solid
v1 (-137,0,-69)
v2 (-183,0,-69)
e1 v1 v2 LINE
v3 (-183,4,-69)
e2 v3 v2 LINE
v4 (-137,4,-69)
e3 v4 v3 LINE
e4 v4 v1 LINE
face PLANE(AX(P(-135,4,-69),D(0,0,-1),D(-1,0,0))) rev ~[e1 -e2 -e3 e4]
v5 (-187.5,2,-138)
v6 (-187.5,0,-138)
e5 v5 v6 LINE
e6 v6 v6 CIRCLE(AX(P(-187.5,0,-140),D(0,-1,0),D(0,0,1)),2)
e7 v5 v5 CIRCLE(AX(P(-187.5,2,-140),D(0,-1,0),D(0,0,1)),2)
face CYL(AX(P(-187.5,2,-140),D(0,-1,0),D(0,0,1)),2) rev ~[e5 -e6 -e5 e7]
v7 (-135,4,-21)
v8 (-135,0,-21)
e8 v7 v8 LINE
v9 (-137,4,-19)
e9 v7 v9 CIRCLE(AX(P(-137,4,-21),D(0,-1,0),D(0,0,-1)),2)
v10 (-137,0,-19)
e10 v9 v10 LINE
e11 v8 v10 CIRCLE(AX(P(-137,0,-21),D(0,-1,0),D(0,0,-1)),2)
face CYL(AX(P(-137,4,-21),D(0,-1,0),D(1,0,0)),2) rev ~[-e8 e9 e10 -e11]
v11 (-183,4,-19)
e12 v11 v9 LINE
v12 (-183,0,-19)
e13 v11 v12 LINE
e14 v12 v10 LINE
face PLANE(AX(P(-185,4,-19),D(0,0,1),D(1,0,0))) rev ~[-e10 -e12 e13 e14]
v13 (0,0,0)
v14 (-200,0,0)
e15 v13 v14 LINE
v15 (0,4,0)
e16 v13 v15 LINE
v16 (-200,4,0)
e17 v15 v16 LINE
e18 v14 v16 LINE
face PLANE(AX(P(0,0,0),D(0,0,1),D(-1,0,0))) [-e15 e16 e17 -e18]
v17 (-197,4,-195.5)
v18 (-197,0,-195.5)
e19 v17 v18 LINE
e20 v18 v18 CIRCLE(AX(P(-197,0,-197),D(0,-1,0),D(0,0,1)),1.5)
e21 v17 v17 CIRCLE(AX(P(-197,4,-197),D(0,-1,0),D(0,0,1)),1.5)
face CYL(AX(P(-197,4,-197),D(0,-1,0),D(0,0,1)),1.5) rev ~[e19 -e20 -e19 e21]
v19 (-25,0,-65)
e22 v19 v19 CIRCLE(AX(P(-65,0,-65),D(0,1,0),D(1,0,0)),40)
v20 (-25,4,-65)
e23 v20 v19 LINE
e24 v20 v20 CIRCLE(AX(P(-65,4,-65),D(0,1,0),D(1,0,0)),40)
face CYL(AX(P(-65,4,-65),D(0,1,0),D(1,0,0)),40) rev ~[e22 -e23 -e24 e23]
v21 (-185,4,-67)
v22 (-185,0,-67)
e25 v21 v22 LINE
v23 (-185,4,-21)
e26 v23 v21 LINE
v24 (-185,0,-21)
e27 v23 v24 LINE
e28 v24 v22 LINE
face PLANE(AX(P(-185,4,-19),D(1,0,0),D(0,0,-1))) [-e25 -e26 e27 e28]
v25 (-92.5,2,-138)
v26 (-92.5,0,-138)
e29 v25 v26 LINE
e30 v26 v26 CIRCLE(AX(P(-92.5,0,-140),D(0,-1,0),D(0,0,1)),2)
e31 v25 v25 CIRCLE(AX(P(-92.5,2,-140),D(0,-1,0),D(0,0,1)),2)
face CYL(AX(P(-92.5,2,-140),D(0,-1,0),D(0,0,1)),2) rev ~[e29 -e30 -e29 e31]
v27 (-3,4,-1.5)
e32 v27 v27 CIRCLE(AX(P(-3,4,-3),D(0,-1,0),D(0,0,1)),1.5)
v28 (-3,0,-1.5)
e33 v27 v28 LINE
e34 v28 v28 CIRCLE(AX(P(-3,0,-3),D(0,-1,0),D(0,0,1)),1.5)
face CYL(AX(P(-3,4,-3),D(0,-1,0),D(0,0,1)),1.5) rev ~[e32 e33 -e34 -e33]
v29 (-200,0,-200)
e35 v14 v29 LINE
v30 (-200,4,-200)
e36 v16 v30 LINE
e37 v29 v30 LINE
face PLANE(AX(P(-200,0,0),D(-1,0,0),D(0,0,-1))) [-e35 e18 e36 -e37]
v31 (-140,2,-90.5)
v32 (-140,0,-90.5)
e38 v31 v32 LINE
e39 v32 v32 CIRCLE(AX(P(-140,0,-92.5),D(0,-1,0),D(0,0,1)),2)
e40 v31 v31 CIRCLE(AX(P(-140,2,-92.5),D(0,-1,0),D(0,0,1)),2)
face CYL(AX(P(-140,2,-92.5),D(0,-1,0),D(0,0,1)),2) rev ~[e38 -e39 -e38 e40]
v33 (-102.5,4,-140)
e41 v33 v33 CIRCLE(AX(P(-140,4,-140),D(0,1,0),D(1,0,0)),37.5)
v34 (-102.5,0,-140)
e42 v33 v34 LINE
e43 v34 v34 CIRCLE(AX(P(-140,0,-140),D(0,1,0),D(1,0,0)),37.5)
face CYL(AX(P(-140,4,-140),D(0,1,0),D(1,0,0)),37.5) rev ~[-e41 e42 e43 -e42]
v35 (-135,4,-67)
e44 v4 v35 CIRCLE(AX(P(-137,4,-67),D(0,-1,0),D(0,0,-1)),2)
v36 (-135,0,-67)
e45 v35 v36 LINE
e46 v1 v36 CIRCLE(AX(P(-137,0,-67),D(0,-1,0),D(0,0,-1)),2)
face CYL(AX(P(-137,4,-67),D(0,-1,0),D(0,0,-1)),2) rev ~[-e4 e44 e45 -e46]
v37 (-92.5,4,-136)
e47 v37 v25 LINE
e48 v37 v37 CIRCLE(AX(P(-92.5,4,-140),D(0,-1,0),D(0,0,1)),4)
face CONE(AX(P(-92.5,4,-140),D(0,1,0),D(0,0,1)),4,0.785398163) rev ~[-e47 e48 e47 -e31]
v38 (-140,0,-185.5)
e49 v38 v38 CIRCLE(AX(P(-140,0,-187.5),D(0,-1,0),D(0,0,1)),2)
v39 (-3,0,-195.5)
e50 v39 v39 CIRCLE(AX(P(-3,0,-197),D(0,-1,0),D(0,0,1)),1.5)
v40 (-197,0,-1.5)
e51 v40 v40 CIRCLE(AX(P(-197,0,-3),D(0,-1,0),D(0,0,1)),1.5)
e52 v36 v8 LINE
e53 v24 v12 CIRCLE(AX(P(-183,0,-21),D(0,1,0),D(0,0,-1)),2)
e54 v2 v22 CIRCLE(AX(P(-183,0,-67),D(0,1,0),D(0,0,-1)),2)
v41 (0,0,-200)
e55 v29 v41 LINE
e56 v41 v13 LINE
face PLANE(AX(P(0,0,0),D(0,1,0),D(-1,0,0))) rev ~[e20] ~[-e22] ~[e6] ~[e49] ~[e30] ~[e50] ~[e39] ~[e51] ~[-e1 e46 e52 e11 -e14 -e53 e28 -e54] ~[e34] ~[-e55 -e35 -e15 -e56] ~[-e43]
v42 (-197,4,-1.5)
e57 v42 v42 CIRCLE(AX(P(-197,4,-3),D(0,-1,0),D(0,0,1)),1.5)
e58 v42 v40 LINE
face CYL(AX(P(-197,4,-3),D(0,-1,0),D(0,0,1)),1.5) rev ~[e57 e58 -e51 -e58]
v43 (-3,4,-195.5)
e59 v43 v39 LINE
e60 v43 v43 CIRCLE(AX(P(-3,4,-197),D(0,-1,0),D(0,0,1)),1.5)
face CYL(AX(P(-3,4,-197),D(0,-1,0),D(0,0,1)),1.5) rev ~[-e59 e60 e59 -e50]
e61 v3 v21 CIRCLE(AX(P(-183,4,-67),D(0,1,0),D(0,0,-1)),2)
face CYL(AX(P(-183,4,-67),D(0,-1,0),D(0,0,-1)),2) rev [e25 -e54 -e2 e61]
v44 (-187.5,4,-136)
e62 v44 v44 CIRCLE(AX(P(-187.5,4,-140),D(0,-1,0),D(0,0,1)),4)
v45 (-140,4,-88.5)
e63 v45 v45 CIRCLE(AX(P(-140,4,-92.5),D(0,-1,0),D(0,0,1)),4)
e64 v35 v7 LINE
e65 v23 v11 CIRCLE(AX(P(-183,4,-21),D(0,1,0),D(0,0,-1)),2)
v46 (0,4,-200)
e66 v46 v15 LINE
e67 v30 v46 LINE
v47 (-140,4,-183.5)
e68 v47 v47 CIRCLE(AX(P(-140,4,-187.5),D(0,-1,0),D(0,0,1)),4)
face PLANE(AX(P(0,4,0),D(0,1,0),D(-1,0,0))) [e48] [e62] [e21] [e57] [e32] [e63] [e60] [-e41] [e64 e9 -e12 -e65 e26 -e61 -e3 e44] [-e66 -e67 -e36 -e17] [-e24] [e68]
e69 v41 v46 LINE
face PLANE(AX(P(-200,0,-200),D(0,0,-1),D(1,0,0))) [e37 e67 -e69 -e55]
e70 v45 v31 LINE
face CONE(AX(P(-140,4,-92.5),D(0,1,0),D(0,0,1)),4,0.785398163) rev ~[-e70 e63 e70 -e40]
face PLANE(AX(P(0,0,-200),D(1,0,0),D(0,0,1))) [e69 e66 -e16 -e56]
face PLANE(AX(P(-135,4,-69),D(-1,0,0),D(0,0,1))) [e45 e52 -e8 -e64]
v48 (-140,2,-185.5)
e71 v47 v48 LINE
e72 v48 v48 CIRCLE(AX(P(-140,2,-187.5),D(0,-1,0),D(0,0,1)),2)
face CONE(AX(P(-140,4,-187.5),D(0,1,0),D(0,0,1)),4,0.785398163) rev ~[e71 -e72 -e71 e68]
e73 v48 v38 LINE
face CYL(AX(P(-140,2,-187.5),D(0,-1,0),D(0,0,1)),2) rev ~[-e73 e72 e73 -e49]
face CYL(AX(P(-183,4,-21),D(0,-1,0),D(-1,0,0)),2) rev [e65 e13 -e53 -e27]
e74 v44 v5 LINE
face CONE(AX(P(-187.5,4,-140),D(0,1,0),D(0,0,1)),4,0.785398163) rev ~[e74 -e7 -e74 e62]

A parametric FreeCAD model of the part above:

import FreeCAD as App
import Part
import Sketcher
from FreeCAD import Vector


def edges_at(feature, points):
    """Names of the edges that pass closest to the given points."""
    edges = feature.Shape.Edges
    near = lambda p: min(range(len(edges)), key=lambda i: edges[i].distToShape(Part.Vertex(*p))[0])
    return sorted({f"Edge{near(p) + 1}" for p in points})


def add_polygon(sketch, points):
    """Adds a closed chain of lines whose ends are joined by coincident constraints."""
    first, n = sketch.GeometryCount, len(points)
    for a, b in zip(points, points[1:] + points[:1]):
        sketch.addGeometry(Part.LineSegment(App.Vector(*a, 0), App.Vector(*b, 0)), False)
    for i in range(n):
        sketch.addConstraint(Sketcher.Constraint("Coincident", first + i, 2, first + (i + 1) % n, 1))

doc = App.newDocument("Part")
body = doc.addObject("PartDesign::Body", "Body")

# Sketch on XZ plane
sketch1 = body.newObject("Sketcher::SketchObject", "Sketch")
sketch1.AttachmentSupport = (doc.getObject("XZ_Plane"), [""])
sketch1.MapMode = "FlatFace"
add_polygon(sketch1, [(-200, 0), (0, 0), (0, -200), (-200, -200)])  # lines 0-3
sketch1.addConstraint([
    Sketcher.Constraint("Horizontal", 0),
    Sketcher.Constraint("Vertical", 1),
    Sketcher.Constraint("Horizontal", 2),
    Sketcher.Constraint("Vertical", 3),
    Sketcher.Constraint("Coincident", 0, 2, -1, 1),
    Sketcher.Constraint("Equal", 2, 1),
    Sketcher.Constraint("DistanceX", 0, 1, 0, 2, 200.0),
])
pad1 = body.newObject("PartDesign::Pad", "Pad")
pad1.Profile = sketch1
pad1.Length = 4
pad1.Reversed = True

# Sketch on XZ plane
sketch2 = body.newObject("Sketcher::SketchObject", "Sketch001")
sketch2.AttachmentSupport = (doc.getObject("XZ_Plane"), [""])
sketch2.MapMode = "FlatFace"
sketch2.AttachmentOffset = App.Placement(Vector(0, 0, -4), App.Rotation())
sketch2.addGeometry([
    Part.Circle(Vector(-197, -197, 0), Vector(0, 0, 1), 1.5),
    Part.Circle(Vector(-3, -197, 0), Vector(0, 0, 1), 1.5),
    Part.Circle(Vector(-197, -3, 0), Vector(0, 0, 1), 1.5),
    Part.Circle(Vector(-3, -3, 0), Vector(0, 0, 1), 1.5),
], False)
sketch2.addConstraint([
    Sketcher.Constraint("Equal", 0, 1),
    Sketcher.Constraint("Equal", 1, 2),
    Sketcher.Constraint("Equal", 2, 3),
    Sketcher.Constraint("Horizontal", 0, 3, 1, 3),
    Sketcher.Constraint("Horizontal", 2, 3, 3, 3),
    Sketcher.Constraint("Vertical", 0, 3, 2, 3),
    Sketcher.Constraint("Vertical", 1, 3, 3, 3),
    Sketcher.Constraint("Diameter", 0, 3.0),
    Sketcher.Constraint("DistanceX", 0, 3, -1, 1, 197.0),
    Sketcher.Constraint("DistanceY", 0, 3, -1, 1, 197.0),
    Sketcher.Constraint("DistanceX", 1, 3, -1, 1, 3.0),
    Sketcher.Constraint("DistanceY", 2, 3, -1, 1, 3.0),
])
doc.recompute()
hole = body.newObject("PartDesign::Hole", "Hole")
hole.Profile = sketch2
hole.ThreadType = "None"
hole.Diameter = 3
hole.DepthType = "ThroughAll"
hole.Reversed = True

# Sketch on XZ plane
sketch3 = body.newObject("Sketcher::SketchObject", "Sketch002")
sketch3.AttachmentSupport = (doc.getObject("XZ_Plane"), [""])
sketch3.MapMode = "FlatFace"
sketch3.AttachmentOffset = App.Placement(Vector(0, 0, -4), App.Rotation())
sketch3.addGeometry(Part.Circle(Vector(-65, -65, 0), Vector(0, 0, 1), 40), False)  # 0
sketch3.addGeometry(Part.Circle(Vector(-140, -140, 0), Vector(0, 0, 1), 38), False)  # 1
add_polygon(sketch3, [(-135, -69), (-185, -69), (-185, -19), (-135, -19)])  # lines 2-5
sketch3.addConstraint([
    Sketcher.Constraint("Horizontal", 2),
    Sketcher.Constraint("Vertical", 3),
    Sketcher.Constraint("Horizontal", 4),
    Sketcher.Constraint("Vertical", 5),
    Sketcher.Constraint("Equal", 4, 3),
    Sketcher.Constraint("Diameter", 0, 80.0),
    Sketcher.Constraint("Diameter", 1, 75.0),
    Sketcher.Constraint("DistanceX", 2, 2, 2, 1, 50.0),
    Sketcher.Constraint("DistanceX", 0, 3, -1, 1, 65.0),
    Sketcher.Constraint("DistanceY", 0, 3, -1, 1, 65.0),
    Sketcher.Constraint("DistanceX", 1, 3, -1, 1, 140.0),
    Sketcher.Constraint("DistanceY", 1, 3, -1, 1, 140.0),
    Sketcher.Constraint("DistanceX", 4, 2, -1, 1, 135.0),
    Sketcher.Constraint("DistanceY", 2, 2, -1, 1, 69.0),
])
pocket1 = body.newObject("PartDesign::Pocket", "Pocket")
pocket1.Profile = sketch3
pocket1.Type = "ThroughAll"
pocket1.Reversed = True

# Sketch on XZ plane
sketch4 = body.newObject("Sketcher::SketchObject", "Sketch003")
sketch4.AttachmentSupport = (doc.getObject("XZ_Plane"), [""])
sketch4.MapMode = "FlatFace"
sketch4.AttachmentOffset = App.Placement(Vector(0, 0, -4), App.Rotation())
sketch4.addGeometry([
    Part.Circle(Vector(-187.5, -140, 0), Vector(0, 0, 1), 2),
    Part.Circle(Vector(-140, -92.5, 0), Vector(0, 0, 1), 2),
    Part.Circle(Vector(-140, -187.5, 0), Vector(0, 0, 1), 2),
    Part.Circle(Vector(-92.5, -140, 0), Vector(0, 0, 1), 2),
], False)
sketch4.addConstraint([
    Sketcher.Constraint("Equal", 0, 1),
    Sketcher.Constraint("Equal", 1, 2),
    Sketcher.Constraint("Equal", 2, 3),
    Sketcher.Constraint("Horizontal", 0, 3, 3, 3),
    Sketcher.Constraint("Vertical", 1, 3, 2, 3),
    Sketcher.Constraint("Diameter", 0, 4.0),
    Sketcher.Constraint("DistanceY", 0, 3, -1, 1, 140.0),
    Sketcher.Constraint("DistanceX", 1, 3, -1, 1, 140.0),
    Sketcher.Constraint("DistanceY", 2, 3, 1, 3, 95.0),
    Sketcher.Constraint("DistanceX", 0, 3, 3, 3, 95.0),
    Sketcher.Constraint("DistanceX", 0, 3, -1, 1, 187.5),
    Sketcher.Constraint("DistanceY", 1, 3, -1, 1, 92.5),
])
doc.recompute()
hole2 = body.newObject("PartDesign::Hole", "Hole001")
hole2.Profile = sketch4
hole2.ThreadType = "None"
hole2.Diameter = 4
hole2.DepthType = "ThroughAll"
hole2.HoleCutType = "Countersink"
hole2.HoleCutDiameter = 8
hole2.HoleCutCountersinkAngle = 90
hole2.Reversed = True
doc.recompute()

fillet = body.newObject("PartDesign::Fillet", "Fillet")
fillet.Base = (hole2, edges_at(hole2, [
    (-185, 2, -69),
    (-185, 2, -19),
    (-135, 2, -69),
    (-135, 2, -19),
]))
fillet.Radius = 2

doc.recompute()
